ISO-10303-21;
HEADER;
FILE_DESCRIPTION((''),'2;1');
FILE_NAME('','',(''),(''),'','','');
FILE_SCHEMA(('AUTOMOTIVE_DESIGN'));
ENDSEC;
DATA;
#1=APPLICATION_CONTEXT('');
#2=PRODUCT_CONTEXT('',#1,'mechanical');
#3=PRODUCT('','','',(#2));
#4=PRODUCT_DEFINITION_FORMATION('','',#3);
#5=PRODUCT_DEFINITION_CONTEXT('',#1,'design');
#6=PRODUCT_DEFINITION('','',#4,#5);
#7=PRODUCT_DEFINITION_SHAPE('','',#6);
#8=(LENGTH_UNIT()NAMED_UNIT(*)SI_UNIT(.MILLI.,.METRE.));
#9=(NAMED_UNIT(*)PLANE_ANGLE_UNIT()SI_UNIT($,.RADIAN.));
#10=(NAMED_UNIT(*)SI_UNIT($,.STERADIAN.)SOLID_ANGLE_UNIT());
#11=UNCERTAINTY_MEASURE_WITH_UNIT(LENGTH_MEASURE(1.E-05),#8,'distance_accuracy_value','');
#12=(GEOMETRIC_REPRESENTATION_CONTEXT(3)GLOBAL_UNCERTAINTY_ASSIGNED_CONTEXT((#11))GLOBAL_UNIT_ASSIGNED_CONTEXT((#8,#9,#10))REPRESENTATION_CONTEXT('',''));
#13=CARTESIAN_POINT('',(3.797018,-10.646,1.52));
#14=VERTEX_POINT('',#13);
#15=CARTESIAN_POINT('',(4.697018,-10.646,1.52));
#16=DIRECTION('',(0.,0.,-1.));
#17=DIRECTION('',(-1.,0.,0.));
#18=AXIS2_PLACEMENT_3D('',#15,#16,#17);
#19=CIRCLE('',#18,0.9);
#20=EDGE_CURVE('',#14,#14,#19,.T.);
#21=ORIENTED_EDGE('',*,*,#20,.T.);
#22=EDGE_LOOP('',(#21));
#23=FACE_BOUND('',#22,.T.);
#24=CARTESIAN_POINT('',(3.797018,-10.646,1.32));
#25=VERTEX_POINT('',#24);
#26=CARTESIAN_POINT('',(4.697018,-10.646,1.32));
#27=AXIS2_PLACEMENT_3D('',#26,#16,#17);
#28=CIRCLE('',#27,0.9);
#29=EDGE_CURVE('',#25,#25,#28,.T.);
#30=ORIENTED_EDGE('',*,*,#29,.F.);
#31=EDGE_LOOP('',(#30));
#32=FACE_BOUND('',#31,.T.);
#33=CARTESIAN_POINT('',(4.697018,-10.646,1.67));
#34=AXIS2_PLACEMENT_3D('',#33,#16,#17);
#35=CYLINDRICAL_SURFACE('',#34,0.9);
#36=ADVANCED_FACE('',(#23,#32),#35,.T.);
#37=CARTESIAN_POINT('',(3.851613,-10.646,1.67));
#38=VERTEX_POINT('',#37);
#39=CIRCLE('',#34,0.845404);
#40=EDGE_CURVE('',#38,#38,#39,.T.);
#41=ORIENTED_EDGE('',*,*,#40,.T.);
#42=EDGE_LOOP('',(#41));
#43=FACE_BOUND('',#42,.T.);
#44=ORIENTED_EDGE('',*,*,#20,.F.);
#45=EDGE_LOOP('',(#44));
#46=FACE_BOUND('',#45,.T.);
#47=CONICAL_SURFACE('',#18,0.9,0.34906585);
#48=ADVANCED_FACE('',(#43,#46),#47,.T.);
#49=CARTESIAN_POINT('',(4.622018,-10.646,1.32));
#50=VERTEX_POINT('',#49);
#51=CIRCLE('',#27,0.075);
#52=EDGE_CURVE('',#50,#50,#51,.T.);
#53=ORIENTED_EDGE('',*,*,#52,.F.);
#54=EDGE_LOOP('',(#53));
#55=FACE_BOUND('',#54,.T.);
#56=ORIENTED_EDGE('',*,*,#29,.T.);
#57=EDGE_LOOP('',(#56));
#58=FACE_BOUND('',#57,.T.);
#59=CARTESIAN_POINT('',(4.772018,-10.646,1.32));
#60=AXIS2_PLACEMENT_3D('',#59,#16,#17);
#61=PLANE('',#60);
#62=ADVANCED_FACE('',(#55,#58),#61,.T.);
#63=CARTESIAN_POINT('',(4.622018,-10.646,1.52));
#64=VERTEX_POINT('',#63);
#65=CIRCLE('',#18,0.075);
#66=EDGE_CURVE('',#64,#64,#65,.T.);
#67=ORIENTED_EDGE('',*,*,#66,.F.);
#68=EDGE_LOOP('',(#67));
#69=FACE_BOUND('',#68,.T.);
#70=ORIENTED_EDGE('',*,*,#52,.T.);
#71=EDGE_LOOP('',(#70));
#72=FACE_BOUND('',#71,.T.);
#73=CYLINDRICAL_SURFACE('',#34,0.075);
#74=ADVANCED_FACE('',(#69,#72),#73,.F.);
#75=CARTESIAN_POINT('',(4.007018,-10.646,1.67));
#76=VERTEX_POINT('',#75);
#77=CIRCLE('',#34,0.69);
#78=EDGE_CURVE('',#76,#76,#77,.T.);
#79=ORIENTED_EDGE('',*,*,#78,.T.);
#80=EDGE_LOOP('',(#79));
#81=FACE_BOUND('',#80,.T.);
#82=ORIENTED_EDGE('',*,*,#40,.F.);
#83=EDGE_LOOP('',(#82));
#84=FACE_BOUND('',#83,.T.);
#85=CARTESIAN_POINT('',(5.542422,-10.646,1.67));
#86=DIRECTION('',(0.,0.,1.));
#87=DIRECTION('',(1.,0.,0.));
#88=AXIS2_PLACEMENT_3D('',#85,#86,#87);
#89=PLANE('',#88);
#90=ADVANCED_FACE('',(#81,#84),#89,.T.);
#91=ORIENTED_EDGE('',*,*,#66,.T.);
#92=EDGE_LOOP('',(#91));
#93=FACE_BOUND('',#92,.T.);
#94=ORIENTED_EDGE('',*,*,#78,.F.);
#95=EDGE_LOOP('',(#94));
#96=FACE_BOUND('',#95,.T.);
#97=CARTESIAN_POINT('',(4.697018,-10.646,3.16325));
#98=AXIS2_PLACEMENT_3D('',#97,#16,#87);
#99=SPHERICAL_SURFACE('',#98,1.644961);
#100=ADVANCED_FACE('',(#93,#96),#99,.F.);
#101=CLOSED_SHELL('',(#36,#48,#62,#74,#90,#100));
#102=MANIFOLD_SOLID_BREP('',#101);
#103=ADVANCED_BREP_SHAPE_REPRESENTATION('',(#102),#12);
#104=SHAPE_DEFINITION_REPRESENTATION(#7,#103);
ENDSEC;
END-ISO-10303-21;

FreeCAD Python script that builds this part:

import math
import FreeCAD as App
import Part
import Sketcher
Q = App.Units.Quantity

doc = App.newDocument("Part")
params = doc.addObject("Spreadsheet::Sheet", "Params")
for row, (alias, value) in enumerate([
    ("sketch1_height", "0.2 mm"),
    ("revolution_angle", "360 deg"),
], start=1):
    params.set(f"A{row}", alias)
    params.set(f"B{row}", "=" + value)
    params.setAlias(f"B{row}", alias)

body = doc.addObject("PartDesign::Body", "Body")

sketch1 = body.newObject("Sketcher::SketchObject", "Sketch")
sketch1.AttachmentSupport = (doc.getObject("XZ_Plane"), [""])
sketch1.MapMode = "FlatFace"
sketch1.AttachmentOffset = App.Placement(App.Vector(0, 0, 10.646), App.Rotation())
sketch1.addGeometry([
    Part.LineSegment(App.Vector(5.597018, 1.52, 0), App.Vector(5.542422, 1.67, 0)),
    Part.LineSegment(App.Vector(5.542422, 1.67, 0), App.Vector(5.387018, 1.67, 0)),
    Part.ArcOfCircle(Part.Circle(App.Vector(4.697018, 3.16325, 0), App.Vector(0, 0, 1), 1.644961), math.radians(-87.386762), math.radians(-65.199316)),
    Part.LineSegment(App.Vector(4.772018, 1.52, 0), App.Vector(4.772018, 1.32, 0)),
    Part.LineSegment(App.Vector(4.772018, 1.32, 0), App.Vector(5.597018, 1.32, 0)),
    Part.LineSegment(App.Vector(5.597018, 1.32, 0), App.Vector(5.597018, 1.52, 0)),
], False)
sketch1.addGeometry(Part.LineSegment(App.Vector(4.697018, 3.16325, 0), App.Vector(4.697018, 1.32, 0)), True)
sketch1.addConstraint([
    Sketcher.Constraint("Coincident", 0, 2, 1, 1),
    Sketcher.Constraint("Coincident", 1, 2, 2, 2),
    Sketcher.Constraint("Coincident", 2, 1, 3, 1),
    Sketcher.Constraint("Coincident", 3, 2, 4, 1),
    Sketcher.Constraint("Coincident", 4, 2, 5, 1),
    Sketcher.Constraint("Coincident", 5, 2, 0, 1),
    Sketcher.Constraint("Horizontal", 1),
    Sketcher.Constraint("Vertical", 3),
    Sketcher.Constraint("Horizontal", 4),
    Sketcher.Constraint("Vertical", 5),
    Sketcher.Constraint("Vertical", 6),
    Sketcher.Constraint("Coincident", 6, 1, 2, 3),
    Sketcher.Constraint("Horizontal", 2, 1, 5, 2),
    Sketcher.Constraint("Horizontal", 4, 2, 6, 2),
    Sketcher.Constraint("Angle", 0, Q("110 deg")),
    Sketcher.Constraint("DistanceY", 3, 2, 3, 1, 0.2),
    Sketcher.Constraint("DistanceX", 2, 3, 4, 2, 0.9),
    Sketcher.Constraint("DistanceX", 4, 1, 4, 2, 0.825),
    Sketcher.Constraint("DistanceY", -1, 1, 0, 2, 1.67),
    Sketcher.Constraint("DistanceY", -1, 1, 2, 1, 1.52),
    Sketcher.Constraint("Radius", 2, 1.644961),
    Sketcher.Constraint("DistanceX", -1, 1, 2, 3, 4.697018),
])
sketch1.setExpression("Constraints[15]", "Params.sketch1_height")
revolution = body.newObject("PartDesign::Revolution", "Revolution")
revolution.Profile = sketch1
revolution.ReferenceAxis = (sketch1, ["Axis0"])
revolution.setExpression("Angle", "Params.revolution_angle")

doc.recompute()
